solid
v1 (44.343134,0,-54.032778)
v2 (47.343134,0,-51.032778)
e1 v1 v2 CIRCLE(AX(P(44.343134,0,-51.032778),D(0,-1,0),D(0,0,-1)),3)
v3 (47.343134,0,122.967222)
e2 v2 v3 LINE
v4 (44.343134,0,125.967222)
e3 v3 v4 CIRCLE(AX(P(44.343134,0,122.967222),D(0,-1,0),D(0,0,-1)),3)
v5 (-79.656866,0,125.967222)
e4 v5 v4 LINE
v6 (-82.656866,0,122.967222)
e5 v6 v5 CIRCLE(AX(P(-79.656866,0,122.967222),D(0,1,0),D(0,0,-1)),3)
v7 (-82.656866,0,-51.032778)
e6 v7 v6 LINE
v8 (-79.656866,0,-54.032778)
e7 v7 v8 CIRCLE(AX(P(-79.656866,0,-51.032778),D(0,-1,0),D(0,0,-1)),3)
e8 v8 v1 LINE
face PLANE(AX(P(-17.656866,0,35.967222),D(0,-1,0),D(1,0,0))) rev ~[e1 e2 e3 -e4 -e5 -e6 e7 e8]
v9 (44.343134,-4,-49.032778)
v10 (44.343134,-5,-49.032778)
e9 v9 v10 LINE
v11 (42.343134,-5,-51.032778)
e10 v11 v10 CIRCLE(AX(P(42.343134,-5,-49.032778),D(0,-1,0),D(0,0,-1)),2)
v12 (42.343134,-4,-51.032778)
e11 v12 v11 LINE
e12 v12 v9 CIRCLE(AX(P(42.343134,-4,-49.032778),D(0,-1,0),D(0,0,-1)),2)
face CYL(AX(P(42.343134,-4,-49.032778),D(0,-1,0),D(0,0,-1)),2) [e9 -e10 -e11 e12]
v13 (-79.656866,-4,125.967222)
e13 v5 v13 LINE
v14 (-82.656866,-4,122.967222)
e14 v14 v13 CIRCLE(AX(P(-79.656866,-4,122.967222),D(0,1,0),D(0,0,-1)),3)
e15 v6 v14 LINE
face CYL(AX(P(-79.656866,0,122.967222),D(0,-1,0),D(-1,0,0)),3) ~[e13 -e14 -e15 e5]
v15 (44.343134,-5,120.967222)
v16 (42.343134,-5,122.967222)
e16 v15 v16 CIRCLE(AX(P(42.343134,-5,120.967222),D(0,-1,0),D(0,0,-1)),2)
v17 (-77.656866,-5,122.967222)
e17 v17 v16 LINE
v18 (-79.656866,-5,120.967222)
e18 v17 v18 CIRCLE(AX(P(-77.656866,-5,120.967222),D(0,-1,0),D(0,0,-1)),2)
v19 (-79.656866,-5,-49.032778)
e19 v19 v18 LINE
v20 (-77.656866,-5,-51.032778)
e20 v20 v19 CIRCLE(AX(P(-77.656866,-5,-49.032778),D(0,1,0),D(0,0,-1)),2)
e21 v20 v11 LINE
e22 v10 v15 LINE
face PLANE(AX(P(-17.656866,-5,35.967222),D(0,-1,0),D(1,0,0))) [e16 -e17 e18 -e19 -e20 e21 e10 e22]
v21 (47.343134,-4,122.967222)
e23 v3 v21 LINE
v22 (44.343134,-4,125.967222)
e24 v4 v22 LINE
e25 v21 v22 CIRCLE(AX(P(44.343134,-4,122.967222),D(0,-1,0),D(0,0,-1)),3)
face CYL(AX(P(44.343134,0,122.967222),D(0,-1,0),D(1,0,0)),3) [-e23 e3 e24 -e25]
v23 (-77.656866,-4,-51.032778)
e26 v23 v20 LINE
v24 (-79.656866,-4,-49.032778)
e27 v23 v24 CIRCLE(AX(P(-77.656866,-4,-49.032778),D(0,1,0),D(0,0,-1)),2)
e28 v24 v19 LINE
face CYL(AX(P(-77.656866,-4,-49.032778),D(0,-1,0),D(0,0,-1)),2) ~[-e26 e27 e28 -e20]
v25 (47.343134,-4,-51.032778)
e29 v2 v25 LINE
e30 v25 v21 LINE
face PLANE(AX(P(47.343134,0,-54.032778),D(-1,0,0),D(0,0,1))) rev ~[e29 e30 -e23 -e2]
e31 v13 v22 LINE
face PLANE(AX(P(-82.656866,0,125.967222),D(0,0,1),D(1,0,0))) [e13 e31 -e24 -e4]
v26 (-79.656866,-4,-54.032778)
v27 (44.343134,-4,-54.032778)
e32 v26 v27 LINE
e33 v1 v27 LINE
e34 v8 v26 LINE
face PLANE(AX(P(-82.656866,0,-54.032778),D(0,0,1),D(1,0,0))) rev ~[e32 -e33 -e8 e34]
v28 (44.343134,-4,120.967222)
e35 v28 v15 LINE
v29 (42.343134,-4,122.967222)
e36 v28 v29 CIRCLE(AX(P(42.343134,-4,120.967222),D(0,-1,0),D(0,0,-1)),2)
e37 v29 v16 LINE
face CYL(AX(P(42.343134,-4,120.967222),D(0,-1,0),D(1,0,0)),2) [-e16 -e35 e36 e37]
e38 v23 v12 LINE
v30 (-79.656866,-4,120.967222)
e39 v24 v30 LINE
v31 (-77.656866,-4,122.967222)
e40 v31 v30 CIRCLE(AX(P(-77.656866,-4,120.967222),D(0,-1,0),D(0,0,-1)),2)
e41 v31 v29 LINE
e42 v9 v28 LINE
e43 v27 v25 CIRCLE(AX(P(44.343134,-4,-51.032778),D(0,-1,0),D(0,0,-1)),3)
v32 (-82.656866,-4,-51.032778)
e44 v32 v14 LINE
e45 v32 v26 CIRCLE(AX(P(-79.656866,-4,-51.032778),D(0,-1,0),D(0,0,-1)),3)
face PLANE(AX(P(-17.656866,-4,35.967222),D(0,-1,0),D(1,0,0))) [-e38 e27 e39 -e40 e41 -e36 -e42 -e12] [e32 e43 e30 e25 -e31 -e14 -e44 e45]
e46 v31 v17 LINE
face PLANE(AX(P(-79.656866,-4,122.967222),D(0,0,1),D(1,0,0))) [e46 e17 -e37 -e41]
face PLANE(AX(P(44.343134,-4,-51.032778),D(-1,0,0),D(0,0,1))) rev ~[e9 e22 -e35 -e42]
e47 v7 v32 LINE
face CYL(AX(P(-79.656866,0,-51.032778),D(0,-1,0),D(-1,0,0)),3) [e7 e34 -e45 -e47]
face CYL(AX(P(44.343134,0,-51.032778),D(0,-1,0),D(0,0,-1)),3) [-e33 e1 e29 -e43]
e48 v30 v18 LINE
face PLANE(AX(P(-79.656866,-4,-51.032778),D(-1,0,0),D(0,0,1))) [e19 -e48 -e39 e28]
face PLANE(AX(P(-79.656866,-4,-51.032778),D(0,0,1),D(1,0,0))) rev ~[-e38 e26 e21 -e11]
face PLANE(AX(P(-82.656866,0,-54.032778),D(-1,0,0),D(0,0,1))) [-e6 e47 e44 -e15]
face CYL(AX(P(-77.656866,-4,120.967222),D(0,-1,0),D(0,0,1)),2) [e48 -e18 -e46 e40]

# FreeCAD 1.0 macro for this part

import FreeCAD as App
import Part
import Sketcher
Q = App.Units.Quantity


def edges_at(feature, points):
    """Names of the edges that pass closest to the given points."""
    edges = feature.Shape.Edges
    near = lambda p: min(range(len(edges)), key=lambda i: edges[i].distToShape(Part.Vertex(*p))[0])
    return sorted({f"Edge{near(p) + 1}" for p in points})


def add_polygon(sketch, points):
    """Adds a closed chain of lines whose ends are joined by coincident constraints."""
    first, n = sketch.GeometryCount, len(points)
    for a, b in zip(points, points[1:] + points[:1]):
        sketch.addGeometry(Part.LineSegment(App.Vector(*a, 0), App.Vector(*b, 0)), False)
    for i in range(n):
        sketch.addConstraint(Sketcher.Constraint("Coincident", first + i, 2, first + (i + 1) % n, 1))

doc = App.newDocument("Part")
body = doc.addObject("PartDesign::Body", "Body")

# Sketch on XZ plane
sketch1 = body.newObject("Sketcher::SketchObject", "Sketch")
sketch1.AttachmentSupport = (doc.getObject("XZ_Plane"), [""])
sketch1.MapMode = "FlatFace"
add_polygon(sketch1, [(-83, 126), (-83, -54), (47, -54), (47, 126)])  # lines 0-3
sketch1.addConstraint([
    Sketcher.Constraint("Vertical", 0),
    Sketcher.Constraint("Horizontal", 1),
    Sketcher.Constraint("Vertical", 2),
    Sketcher.Constraint("Horizontal", 3),
    Sketcher.Constraint("DistanceX", 1, 1, 1, 2, Q("130 mm")),
    Sketcher.Constraint("DistanceY", 0, 2, 0, 1, Q("180 mm")),
    Sketcher.Constraint("DistanceX", 0, 2, -1, 1, Q("82.656866 mm")),
    Sketcher.Constraint("DistanceY", 0, 2, -1, 1, Q("54.032778 mm")),
])
pad1 = body.newObject("PartDesign::Pad", "Pad")
pad1.Profile = sketch1
pad1.Length = 4
doc.recompute()

fillet = body.newObject("PartDesign::Fillet", "Fillet")
fillet.Base = (pad1, edges_at(pad1, [
    (-82.657, -2, 125.967),
    (-82.657, -2, -54.033),
    (47.343, -2, -54.033),
    (47.343, -2, 125.967),
]))
fillet.Radius = 3

# Sketch on XZ plane
sketch2 = body.newObject("Sketcher::SketchObject", "Sketch001")
sketch2.AttachmentSupport = (doc.getObject("XZ_Plane"), [""])
sketch2.MapMode = "FlatFace"
sketch2.AttachmentOffset = App.Placement(App.Vector(0, 0, 4), App.Rotation())
add_polygon(sketch2, [(-80, 123), (-80, -51), (44, -51), (44, 123)])  # lines 0-3
sketch2.addConstraint([
    Sketcher.Constraint("Vertical", 0),
    Sketcher.Constraint("Horizontal", 1),
    Sketcher.Constraint("Vertical", 2),
    Sketcher.Constraint("Horizontal", 3),
    Sketcher.Constraint("DistanceX", 1, 1, 1, 2, Q("124 mm")),
    Sketcher.Constraint("DistanceY", 0, 2, 0, 1, Q("174 mm")),
    Sketcher.Constraint("DistanceX", 0, 2, -1, 1, Q("79.656866 mm")),
    Sketcher.Constraint("DistanceY", 0, 2, -1, 1, Q("51.032778 mm")),
])
pad2 = body.newObject("PartDesign::Pad", "Pad001")
pad2.Profile = sketch2
pad2.Length = 1
doc.recompute()

fillet2 = body.newObject("PartDesign::Fillet", "Fillet001")
fillet2.Base = (pad2, edges_at(pad2, [
    (-79.657, -4.5, 122.967),
    (44.343, -4.5, 122.967),
    (-79.657, -4.5, -51.033),
    (44.343, -4.5, -51.033),
]))
fillet2.Radius = 2

doc.recompute()
